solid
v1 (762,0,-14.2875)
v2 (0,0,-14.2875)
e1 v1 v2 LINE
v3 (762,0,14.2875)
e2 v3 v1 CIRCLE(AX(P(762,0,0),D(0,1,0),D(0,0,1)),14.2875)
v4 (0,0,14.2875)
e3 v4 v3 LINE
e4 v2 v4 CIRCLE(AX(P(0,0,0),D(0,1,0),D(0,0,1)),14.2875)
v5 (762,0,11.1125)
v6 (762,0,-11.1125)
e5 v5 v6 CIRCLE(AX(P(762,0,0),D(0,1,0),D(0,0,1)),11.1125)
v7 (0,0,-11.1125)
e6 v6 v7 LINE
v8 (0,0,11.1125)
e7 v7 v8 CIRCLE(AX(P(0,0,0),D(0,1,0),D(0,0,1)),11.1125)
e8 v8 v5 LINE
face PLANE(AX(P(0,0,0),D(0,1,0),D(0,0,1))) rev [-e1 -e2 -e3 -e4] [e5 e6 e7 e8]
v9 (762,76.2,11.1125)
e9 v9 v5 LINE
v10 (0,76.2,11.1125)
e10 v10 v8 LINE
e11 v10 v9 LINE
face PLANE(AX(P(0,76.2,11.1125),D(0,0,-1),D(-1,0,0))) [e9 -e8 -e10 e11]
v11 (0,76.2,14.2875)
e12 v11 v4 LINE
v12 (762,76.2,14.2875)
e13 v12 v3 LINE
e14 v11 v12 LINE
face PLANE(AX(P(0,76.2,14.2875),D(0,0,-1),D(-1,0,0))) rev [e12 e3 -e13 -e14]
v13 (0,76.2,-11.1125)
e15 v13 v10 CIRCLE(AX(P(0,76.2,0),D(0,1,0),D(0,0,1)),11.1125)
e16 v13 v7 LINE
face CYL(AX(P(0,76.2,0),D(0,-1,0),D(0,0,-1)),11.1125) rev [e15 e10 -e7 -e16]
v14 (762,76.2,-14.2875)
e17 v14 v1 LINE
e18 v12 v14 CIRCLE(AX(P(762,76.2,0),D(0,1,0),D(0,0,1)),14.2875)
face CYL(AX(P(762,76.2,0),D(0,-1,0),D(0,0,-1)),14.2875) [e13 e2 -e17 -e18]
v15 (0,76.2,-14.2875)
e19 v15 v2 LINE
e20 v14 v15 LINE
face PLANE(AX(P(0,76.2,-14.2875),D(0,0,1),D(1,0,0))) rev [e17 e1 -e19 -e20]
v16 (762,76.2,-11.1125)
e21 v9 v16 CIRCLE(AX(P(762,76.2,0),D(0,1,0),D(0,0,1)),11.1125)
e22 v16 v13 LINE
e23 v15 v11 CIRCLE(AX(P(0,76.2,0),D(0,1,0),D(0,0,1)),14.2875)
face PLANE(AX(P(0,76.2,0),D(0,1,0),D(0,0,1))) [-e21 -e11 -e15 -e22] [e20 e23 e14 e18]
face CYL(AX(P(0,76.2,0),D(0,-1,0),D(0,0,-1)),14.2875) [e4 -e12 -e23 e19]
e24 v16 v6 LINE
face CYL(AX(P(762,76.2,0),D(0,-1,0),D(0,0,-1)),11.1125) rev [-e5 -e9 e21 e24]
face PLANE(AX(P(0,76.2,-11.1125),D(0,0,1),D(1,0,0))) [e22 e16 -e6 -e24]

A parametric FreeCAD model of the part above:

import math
import FreeCAD as App
import Part
import Sketcher
Q = App.Units.Quantity

doc = App.newDocument("Part")
body = doc.addObject("PartDesign::Body", "Body")

sketch1 = body.newObject("Sketcher::SketchObject", "Sketch")
sketch1.AttachmentSupport = (doc.getObject("XZ_Plane"), [""])
sketch1.MapMode = "FlatFace"
sketch1.addGeometry([
    Part.LineSegment(App.Vector(762, -14, 0), App.Vector(0, -14, 0)),
    Part.ArcOfCircle(Part.Circle(App.Vector(0, 0, 0), App.Vector(0, 0, 1), 14), math.radians(90), math.radians(270)),
    Part.LineSegment(App.Vector(0, 14, 0), App.Vector(762, 14, 0)),
    Part.ArcOfCircle(Part.Circle(App.Vector(762, 0, 0), App.Vector(0, 0, 1), 14), math.radians(-90), math.radians(90)),
    Part.LineSegment(App.Vector(0, -11, 0), App.Vector(762, -11, 0)),
    Part.ArcOfCircle(Part.Circle(App.Vector(762, 0, 0), App.Vector(0, 0, 1), 11), math.radians(-90), math.radians(90)),
    Part.LineSegment(App.Vector(762, 11, 0), App.Vector(0, 11, 0)),
    Part.ArcOfCircle(Part.Circle(App.Vector(0, 0, 0), App.Vector(0, 0, 1), 11), math.radians(90), math.radians(270)),
], False)
sketch1.addConstraint([
    Sketcher.Constraint("Tangent", 0, 2, 1, 2),
    Sketcher.Constraint("Tangent", 1, 1, 2, 1),
    Sketcher.Constraint("Tangent", 2, 2, 3, 2),
    Sketcher.Constraint("Tangent", 3, 1, 0, 1),
    Sketcher.Constraint("Tangent", 4, 2, 5, 1),
    Sketcher.Constraint("Tangent", 5, 2, 6, 1),
    Sketcher.Constraint("Tangent", 6, 2, 7, 1),
    Sketcher.Constraint("Tangent", 7, 2, 4, 1),
    Sketcher.Constraint("Horizontal", 0),
    Sketcher.Constraint("Horizontal", 2),
    Sketcher.Constraint("Horizontal", 4),
    Sketcher.Constraint("Horizontal", 6),
    Sketcher.Constraint("Coincident", 1, 3, -1, 1),
    Sketcher.Constraint("Coincident", 7, 3, -1, 1),
    Sketcher.Constraint("Vertical", 5, 3, 2, 2),
    Sketcher.Constraint("DistanceX", 0, 2, 0, 1, Q("30 in")),
    Sketcher.Constraint("Radius", 1, Q("0.5625 in")),
    Sketcher.Constraint("Radius", 5, Q("0.4375 in")),
])
pad1 = body.newObject("PartDesign::Pad", "Pad")
pad1.Profile = sketch1
pad1.Length = Q("3 in")
pad1.Reversed = True

doc.recompute()
